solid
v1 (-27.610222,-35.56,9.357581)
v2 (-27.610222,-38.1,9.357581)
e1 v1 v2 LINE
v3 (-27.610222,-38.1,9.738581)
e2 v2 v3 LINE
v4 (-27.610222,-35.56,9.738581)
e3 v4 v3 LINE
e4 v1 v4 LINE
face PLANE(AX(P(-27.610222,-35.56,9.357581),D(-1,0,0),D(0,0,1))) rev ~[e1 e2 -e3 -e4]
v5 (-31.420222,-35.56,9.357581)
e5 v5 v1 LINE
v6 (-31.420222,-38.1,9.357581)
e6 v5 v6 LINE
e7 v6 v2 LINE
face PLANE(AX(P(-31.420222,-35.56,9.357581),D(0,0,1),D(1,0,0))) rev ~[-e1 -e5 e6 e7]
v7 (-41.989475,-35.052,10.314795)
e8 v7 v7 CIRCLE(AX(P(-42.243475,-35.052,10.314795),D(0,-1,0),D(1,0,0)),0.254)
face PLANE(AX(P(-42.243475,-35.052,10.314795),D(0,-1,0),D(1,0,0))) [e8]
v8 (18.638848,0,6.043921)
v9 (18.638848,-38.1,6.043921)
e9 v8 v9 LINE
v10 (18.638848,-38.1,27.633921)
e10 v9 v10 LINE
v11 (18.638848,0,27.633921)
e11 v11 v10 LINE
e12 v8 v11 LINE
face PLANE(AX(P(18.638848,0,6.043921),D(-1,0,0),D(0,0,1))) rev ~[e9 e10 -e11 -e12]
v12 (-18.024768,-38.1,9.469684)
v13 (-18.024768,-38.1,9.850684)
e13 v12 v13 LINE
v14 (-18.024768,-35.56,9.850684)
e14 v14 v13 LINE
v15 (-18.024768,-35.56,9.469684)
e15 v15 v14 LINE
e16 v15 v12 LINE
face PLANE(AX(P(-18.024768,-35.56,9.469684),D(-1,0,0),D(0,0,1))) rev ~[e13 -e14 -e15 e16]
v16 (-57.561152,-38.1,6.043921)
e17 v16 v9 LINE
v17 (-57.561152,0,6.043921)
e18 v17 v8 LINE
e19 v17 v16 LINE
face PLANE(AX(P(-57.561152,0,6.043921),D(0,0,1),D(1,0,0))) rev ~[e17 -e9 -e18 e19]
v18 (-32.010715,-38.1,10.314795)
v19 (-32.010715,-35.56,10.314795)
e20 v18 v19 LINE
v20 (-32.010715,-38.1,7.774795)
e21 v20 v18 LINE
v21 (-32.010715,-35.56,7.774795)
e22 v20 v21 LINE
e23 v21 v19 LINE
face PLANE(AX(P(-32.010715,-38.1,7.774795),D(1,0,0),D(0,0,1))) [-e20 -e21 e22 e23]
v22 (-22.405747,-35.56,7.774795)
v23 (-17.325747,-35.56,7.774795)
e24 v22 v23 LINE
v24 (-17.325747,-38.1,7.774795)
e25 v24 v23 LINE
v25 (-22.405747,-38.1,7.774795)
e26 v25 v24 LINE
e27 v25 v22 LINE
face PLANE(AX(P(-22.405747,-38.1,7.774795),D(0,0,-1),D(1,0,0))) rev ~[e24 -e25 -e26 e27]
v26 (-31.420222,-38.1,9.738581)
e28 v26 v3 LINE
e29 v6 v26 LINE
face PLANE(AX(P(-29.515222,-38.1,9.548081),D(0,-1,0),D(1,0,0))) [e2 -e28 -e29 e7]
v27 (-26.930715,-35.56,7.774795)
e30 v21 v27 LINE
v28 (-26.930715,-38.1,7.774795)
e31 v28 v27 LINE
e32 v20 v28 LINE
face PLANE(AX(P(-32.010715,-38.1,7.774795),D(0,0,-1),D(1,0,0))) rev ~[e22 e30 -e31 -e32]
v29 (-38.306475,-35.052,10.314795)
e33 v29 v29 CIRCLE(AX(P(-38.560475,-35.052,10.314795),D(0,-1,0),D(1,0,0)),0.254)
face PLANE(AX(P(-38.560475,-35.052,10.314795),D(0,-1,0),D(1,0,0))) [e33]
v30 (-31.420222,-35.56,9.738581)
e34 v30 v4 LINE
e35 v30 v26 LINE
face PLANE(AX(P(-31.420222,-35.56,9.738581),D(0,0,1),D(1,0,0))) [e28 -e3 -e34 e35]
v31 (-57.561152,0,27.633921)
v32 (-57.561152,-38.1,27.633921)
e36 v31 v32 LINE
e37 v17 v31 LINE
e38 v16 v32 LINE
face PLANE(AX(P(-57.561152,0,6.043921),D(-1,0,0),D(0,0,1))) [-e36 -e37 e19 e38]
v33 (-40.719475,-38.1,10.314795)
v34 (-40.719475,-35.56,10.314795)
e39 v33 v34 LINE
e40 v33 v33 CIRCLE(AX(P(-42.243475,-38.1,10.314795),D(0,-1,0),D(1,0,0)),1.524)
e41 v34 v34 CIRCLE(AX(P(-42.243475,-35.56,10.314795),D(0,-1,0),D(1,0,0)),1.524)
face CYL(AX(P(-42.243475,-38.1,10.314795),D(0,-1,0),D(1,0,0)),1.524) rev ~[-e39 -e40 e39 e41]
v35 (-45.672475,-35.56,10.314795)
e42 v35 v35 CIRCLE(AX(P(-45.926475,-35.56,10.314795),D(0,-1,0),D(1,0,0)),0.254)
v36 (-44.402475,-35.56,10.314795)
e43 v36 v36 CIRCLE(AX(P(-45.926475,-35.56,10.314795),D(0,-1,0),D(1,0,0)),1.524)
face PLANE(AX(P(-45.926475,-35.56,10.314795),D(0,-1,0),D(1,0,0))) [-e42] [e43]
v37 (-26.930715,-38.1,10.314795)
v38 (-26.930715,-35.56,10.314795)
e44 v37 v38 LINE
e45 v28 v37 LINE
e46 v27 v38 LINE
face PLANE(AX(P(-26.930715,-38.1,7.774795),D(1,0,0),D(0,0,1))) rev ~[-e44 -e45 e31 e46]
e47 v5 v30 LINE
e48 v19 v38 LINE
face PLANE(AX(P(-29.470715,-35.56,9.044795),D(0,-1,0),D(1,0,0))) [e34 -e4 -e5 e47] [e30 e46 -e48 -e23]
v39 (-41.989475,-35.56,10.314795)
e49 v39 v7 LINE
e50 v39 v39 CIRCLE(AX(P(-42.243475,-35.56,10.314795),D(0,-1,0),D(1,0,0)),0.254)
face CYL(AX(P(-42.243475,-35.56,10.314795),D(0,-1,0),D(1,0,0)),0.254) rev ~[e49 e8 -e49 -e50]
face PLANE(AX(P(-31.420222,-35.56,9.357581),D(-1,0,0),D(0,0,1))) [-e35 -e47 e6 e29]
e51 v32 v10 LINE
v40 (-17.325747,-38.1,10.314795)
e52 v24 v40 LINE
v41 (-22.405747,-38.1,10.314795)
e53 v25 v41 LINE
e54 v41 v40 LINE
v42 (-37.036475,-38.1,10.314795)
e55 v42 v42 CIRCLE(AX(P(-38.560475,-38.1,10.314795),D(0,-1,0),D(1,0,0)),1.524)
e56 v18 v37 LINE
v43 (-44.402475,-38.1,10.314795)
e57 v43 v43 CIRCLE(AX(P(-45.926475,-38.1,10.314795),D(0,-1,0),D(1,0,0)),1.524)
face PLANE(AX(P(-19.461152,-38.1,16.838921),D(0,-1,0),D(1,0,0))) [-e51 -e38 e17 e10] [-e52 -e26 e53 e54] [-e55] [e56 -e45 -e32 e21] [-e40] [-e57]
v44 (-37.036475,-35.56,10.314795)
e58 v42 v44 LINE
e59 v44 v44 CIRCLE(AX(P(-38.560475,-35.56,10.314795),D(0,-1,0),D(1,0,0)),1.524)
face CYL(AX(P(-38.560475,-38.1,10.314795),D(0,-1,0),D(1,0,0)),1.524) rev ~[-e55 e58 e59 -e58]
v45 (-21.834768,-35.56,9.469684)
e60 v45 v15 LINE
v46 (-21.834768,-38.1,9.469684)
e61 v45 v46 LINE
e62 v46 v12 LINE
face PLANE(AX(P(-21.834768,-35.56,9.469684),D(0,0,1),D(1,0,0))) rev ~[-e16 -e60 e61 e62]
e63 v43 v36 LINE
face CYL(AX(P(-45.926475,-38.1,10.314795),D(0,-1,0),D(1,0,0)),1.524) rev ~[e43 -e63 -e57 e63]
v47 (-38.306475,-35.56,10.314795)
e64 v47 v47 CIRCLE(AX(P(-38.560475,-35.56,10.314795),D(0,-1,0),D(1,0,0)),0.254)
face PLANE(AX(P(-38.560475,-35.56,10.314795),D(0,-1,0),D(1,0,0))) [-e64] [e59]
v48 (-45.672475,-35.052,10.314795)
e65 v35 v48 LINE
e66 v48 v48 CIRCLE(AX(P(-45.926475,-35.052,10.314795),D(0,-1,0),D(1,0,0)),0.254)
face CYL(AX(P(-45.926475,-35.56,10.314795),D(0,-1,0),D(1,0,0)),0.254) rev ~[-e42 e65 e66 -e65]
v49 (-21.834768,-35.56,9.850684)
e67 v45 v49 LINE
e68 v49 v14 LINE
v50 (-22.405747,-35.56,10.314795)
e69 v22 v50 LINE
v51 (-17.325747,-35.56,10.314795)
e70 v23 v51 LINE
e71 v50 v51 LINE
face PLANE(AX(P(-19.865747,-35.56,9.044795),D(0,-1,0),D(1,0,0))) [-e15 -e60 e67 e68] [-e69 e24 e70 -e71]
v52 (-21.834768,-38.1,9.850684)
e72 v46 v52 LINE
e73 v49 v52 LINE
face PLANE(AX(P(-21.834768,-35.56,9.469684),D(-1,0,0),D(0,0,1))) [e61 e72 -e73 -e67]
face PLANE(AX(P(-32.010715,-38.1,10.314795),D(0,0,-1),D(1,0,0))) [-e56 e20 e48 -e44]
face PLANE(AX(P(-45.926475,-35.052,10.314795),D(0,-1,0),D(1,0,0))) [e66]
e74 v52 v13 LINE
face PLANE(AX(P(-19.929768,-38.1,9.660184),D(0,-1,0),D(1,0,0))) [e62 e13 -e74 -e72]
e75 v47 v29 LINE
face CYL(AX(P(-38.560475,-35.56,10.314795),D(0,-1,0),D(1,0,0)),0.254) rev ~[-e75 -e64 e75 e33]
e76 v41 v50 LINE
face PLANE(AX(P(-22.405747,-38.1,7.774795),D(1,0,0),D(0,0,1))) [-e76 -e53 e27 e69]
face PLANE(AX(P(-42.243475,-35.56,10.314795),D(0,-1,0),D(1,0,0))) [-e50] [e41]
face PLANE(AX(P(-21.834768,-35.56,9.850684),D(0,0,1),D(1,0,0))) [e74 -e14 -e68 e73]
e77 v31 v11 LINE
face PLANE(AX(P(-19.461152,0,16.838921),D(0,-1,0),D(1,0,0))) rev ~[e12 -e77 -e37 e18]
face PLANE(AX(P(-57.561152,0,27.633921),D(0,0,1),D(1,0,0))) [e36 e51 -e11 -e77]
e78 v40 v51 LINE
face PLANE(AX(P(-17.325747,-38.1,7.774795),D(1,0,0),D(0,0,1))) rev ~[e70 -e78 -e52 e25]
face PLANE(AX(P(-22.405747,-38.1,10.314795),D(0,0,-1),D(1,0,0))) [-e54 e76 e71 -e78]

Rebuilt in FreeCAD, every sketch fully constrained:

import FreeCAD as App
import Part
import Sketcher
from FreeCAD import Vector
Q = App.Units.Quantity


def add_polygon(sketch, points):
    """Adds a closed chain of lines whose ends are joined by coincident constraints."""
    first, n = sketch.GeometryCount, len(points)
    for a, b in zip(points, points[1:] + points[:1]):
        sketch.addGeometry(Part.LineSegment(App.Vector(*a, 0), App.Vector(*b, 0)), False)
    for i in range(n):
        sketch.addConstraint(Sketcher.Constraint("Coincident", first + i, 2, first + (i + 1) % n, 1))

doc = App.newDocument("Part")
body = doc.addObject("PartDesign::Body", "Body")

# Sketch on XZ plane
sketch1 = body.newObject("Sketcher::SketchObject", "Sketch")
sketch1.AttachmentSupport = (doc.getObject("XZ_Plane"), [""])
sketch1.MapMode = "FlatFace"
add_polygon(sketch1, [(-58, 28), (-58, 6), (19, 6), (19, 28)])  # lines 0-3
sketch1.addConstraint([
    Sketcher.Constraint("Vertical", 0),
    Sketcher.Constraint("Horizontal", 1),
    Sketcher.Constraint("Vertical", 2),
    Sketcher.Constraint("Horizontal", 3),
    Sketcher.Constraint("DistanceX", 1, 1, 1, 2, Q("3 in")),
    Sketcher.Constraint("DistanceY", 0, 2, 0, 1, Q("0.85 in")),
    Sketcher.Constraint("DistanceY", -1, 1, 0, 2, 6.043921),
    Sketcher.Constraint("DistanceX", 0, 2, -1, 1, 57.561152),
])
pad1 = body.newObject("PartDesign::Pad", "Pad")
pad1.Profile = sketch1
pad1.Length = Q("1.5 in")

# Sketch on XZ plane
sketch2 = body.newObject("Sketcher::SketchObject", "Sketch001")
sketch2.AttachmentSupport = (doc.getObject("XZ_Plane"), [""])
sketch2.MapMode = "FlatFace"
sketch2.AttachmentOffset = App.Placement(Vector(0, 0, 1.5 * 25.4), App.Rotation())
add_polygon(sketch2, [(-22.4, 10.3), (-22.4, 7.8), (-17.3, 7.8), (-17.3, 10.3)])  # lines 0-3
add_polygon(sketch2, [(-32, 10.3), (-32, 7.8), (-26.9, 7.8), (-26.9, 10.3)])  # lines 4-7
sketch2.addGeometry(Part.Circle(Vector(-38.6, 10.3, 0), Vector(0, 0, 1), 1.5), False)  # 8
sketch2.addGeometry(Part.Circle(Vector(-42.2, 10.3, 0), Vector(0, 0, 1), 1.5), False)  # 9
sketch2.addGeometry(Part.Circle(Vector(-45.9, 10.3, 0), Vector(0, 0, 1), 1.5), False)  # 10
sketch2.addConstraint([
    Sketcher.Constraint("Vertical", 0),
    Sketcher.Constraint("Horizontal", 1),
    Sketcher.Constraint("Vertical", 2),
    Sketcher.Constraint("Horizontal", 3),
    Sketcher.Constraint("Vertical", 4),
    Sketcher.Constraint("Horizontal", 5),
    Sketcher.Constraint("Vertical", 6),
    Sketcher.Constraint("Horizontal", 7),
    Sketcher.Constraint("Equal", 8, 9),
    Sketcher.Constraint("Equal", 9, 10),
    Sketcher.Constraint("Horizontal", 8, 3, 9, 3),
    Sketcher.Constraint("Horizontal", 9, 3, 10, 3),
    Sketcher.Constraint("Horizontal", 10, 3, 2, 2),
    Sketcher.Constraint("Horizontal", 1, 2, 4, 2),
    Sketcher.Constraint("Horizontal", 3, 2, 6, 2),
    Sketcher.Constraint("Equal", 3, 5),
    Sketcher.Constraint("Diameter", 8, Q("0.12 in")),
    Sketcher.Constraint("DistanceX", 1, 1, 1, 2, Q("0.2 in")),
    Sketcher.Constraint("DistanceY", 0, 2, 0, 1, Q("0.1 in")),
    Sketcher.Constraint("DistanceX", 10, 3, 8, 3, Q("0.29 in")),
    Sketcher.Constraint("DistanceX", 9, 3, 8, 3, Q("0.145 in")),
    Sketcher.Constraint("DistanceX", 10, 3, 0, 2, 23.520728),
    Sketcher.Constraint("DistanceX", 8, 3, 4, 2, 6.54976),
    Sketcher.Constraint("DistanceX", 8, 3, -1, 1, 38.560475),
    Sketcher.Constraint("DistanceY", -1, 1, 8, 3, 10.314795),
])
pocket1 = body.newObject("PartDesign::Pocket", "Pocket")
pocket1.Profile = sketch2
pocket1.Length = Q("0.1 in")

# Sketch on XZ plane
sketch3 = body.newObject("Sketcher::SketchObject", "Sketch002")
sketch3.AttachmentSupport = (doc.getObject("XZ_Plane"), [""])
sketch3.MapMode = "FlatFace"
sketch3.AttachmentOffset = App.Placement(Vector(0, 0, 1.4 * 25.4), App.Rotation())
sketch3.addGeometry(Part.Circle(Vector(-42.24, 10.31, 0), Vector(0, 0, 1), 0.25), False)
sketch3.addConstraint([
    Sketcher.Constraint("Diameter", 0, Q("0.02 in")),
    Sketcher.Constraint("DistanceX", 0, 3, -1, 1, 42.243475),
    Sketcher.Constraint("DistanceY", -1, 1, 0, 3, 10.314795),
])
pocket2 = body.newObject("PartDesign::Pocket", "Pocket001")
pocket2.Profile = sketch3
pocket2.Length = Q("0.02 in")

# Sketch on XZ plane
sketch4 = body.newObject("Sketcher::SketchObject", "Sketch003")
sketch4.AttachmentSupport = (doc.getObject("XZ_Plane"), [""])
sketch4.MapMode = "FlatFace"
sketch4.AttachmentOffset = App.Placement(Vector(0, 0, 1.4 * 25.4), App.Rotation())
sketch4.addGeometry(Part.Circle(Vector(-38.56, 10.31, 0), Vector(0, 0, 1), 0.25), False)
sketch4.addConstraint([
    Sketcher.Constraint("Diameter", 0, Q("0.02 in")),
    Sketcher.Constraint("DistanceX", 0, 3, -1, 1, 38.560475),
    Sketcher.Constraint("DistanceY", -1, 1, 0, 3, 10.314795),
])
pocket3 = body.newObject("PartDesign::Pocket", "Pocket002")
pocket3.Profile = sketch4
pocket3.Length = Q("0.02 in")

# Sketch on XZ plane
sketch5 = body.newObject("Sketcher::SketchObject", "Sketch004")
sketch5.AttachmentSupport = (doc.getObject("XZ_Plane"), [""])
sketch5.MapMode = "FlatFace"
sketch5.AttachmentOffset = App.Placement(Vector(0, 0, 1.4 * 25.4), App.Rotation())
sketch5.addGeometry(Part.Circle(Vector(-45.93, 10.31, 0), Vector(0, 0, 1), 0.25), False)
sketch5.addConstraint([
    Sketcher.Constraint("Diameter", 0, Q("0.02 in")),
    Sketcher.Constraint("DistanceX", 0, 3, -1, 1, 45.926475),
    Sketcher.Constraint("DistanceY", -1, 1, 0, 3, 10.314795),
])
pocket4 = body.newObject("PartDesign::Pocket", "Pocket003")
pocket4.Profile = sketch5
pocket4.Length = Q("0.02 in")

# Sketch on XZ plane
sketch6 = body.newObject("Sketcher::SketchObject", "Sketch005")
sketch6.AttachmentSupport = (doc.getObject("XZ_Plane"), [""])
sketch6.MapMode = "FlatFace"
sketch6.AttachmentOffset = App.Placement(Vector(0, 0, 1.4 * 25.4), App.Rotation())
add_polygon(sketch6, [(-31.42, 9.74), (-31.42, 9.36), (-27.61, 9.36), (-27.61, 9.74)])  # lines 0-3
sketch6.addConstraint([
    Sketcher.Constraint("Vertical", 0),
    Sketcher.Constraint("Horizontal", 1),
    Sketcher.Constraint("Vertical", 2),
    Sketcher.Constraint("Horizontal", 3),
    Sketcher.Constraint("DistanceX", 1, 1, 1, 2, Q("0.15 in")),
    Sketcher.Constraint("DistanceY", 0, 2, 0, 1, Q("0.015 in")),
    Sketcher.Constraint("DistanceX", 0, 2, -1, 1, 31.420222),
    Sketcher.Constraint("DistanceY", -1, 1, 0, 2, 9.357581),
])
pad2 = body.newObject("PartDesign::Pad", "Pad001")
pad2.Profile = sketch6
pad2.Length = Q("0.1 in")

# Sketch on XZ plane
sketch7 = body.newObject("Sketcher::SketchObject", "Sketch006")
sketch7.AttachmentSupport = (doc.getObject("XZ_Plane"), [""])
sketch7.MapMode = "FlatFace"
sketch7.AttachmentOffset = App.Placement(Vector(0, 0, 1.4 * 25.4), App.Rotation())
add_polygon(sketch7, [(-21.83, 9.85), (-21.83, 9.47), (-18.02, 9.47), (-18.02, 9.85)])  # lines 0-3
sketch7.addConstraint([
    Sketcher.Constraint("Vertical", 0),
    Sketcher.Constraint("Horizontal", 1),
    Sketcher.Constraint("Vertical", 2),
    Sketcher.Constraint("Horizontal", 3),
    Sketcher.Constraint("DistanceX", 1, 1, 1, 2, Q("0.15 in")),
    Sketcher.Constraint("DistanceY", 0, 2, 0, 1, Q("0.015 in")),
    Sketcher.Constraint("DistanceX", 0, 2, -1, 1, 21.834768),
    Sketcher.Constraint("DistanceY", -1, 1, 0, 2, 9.469684),
])
pad3 = body.newObject("PartDesign::Pad", "Pad002")
pad3.Profile = sketch7
pad3.Length = Q("0.1 in")

doc.recompute()
